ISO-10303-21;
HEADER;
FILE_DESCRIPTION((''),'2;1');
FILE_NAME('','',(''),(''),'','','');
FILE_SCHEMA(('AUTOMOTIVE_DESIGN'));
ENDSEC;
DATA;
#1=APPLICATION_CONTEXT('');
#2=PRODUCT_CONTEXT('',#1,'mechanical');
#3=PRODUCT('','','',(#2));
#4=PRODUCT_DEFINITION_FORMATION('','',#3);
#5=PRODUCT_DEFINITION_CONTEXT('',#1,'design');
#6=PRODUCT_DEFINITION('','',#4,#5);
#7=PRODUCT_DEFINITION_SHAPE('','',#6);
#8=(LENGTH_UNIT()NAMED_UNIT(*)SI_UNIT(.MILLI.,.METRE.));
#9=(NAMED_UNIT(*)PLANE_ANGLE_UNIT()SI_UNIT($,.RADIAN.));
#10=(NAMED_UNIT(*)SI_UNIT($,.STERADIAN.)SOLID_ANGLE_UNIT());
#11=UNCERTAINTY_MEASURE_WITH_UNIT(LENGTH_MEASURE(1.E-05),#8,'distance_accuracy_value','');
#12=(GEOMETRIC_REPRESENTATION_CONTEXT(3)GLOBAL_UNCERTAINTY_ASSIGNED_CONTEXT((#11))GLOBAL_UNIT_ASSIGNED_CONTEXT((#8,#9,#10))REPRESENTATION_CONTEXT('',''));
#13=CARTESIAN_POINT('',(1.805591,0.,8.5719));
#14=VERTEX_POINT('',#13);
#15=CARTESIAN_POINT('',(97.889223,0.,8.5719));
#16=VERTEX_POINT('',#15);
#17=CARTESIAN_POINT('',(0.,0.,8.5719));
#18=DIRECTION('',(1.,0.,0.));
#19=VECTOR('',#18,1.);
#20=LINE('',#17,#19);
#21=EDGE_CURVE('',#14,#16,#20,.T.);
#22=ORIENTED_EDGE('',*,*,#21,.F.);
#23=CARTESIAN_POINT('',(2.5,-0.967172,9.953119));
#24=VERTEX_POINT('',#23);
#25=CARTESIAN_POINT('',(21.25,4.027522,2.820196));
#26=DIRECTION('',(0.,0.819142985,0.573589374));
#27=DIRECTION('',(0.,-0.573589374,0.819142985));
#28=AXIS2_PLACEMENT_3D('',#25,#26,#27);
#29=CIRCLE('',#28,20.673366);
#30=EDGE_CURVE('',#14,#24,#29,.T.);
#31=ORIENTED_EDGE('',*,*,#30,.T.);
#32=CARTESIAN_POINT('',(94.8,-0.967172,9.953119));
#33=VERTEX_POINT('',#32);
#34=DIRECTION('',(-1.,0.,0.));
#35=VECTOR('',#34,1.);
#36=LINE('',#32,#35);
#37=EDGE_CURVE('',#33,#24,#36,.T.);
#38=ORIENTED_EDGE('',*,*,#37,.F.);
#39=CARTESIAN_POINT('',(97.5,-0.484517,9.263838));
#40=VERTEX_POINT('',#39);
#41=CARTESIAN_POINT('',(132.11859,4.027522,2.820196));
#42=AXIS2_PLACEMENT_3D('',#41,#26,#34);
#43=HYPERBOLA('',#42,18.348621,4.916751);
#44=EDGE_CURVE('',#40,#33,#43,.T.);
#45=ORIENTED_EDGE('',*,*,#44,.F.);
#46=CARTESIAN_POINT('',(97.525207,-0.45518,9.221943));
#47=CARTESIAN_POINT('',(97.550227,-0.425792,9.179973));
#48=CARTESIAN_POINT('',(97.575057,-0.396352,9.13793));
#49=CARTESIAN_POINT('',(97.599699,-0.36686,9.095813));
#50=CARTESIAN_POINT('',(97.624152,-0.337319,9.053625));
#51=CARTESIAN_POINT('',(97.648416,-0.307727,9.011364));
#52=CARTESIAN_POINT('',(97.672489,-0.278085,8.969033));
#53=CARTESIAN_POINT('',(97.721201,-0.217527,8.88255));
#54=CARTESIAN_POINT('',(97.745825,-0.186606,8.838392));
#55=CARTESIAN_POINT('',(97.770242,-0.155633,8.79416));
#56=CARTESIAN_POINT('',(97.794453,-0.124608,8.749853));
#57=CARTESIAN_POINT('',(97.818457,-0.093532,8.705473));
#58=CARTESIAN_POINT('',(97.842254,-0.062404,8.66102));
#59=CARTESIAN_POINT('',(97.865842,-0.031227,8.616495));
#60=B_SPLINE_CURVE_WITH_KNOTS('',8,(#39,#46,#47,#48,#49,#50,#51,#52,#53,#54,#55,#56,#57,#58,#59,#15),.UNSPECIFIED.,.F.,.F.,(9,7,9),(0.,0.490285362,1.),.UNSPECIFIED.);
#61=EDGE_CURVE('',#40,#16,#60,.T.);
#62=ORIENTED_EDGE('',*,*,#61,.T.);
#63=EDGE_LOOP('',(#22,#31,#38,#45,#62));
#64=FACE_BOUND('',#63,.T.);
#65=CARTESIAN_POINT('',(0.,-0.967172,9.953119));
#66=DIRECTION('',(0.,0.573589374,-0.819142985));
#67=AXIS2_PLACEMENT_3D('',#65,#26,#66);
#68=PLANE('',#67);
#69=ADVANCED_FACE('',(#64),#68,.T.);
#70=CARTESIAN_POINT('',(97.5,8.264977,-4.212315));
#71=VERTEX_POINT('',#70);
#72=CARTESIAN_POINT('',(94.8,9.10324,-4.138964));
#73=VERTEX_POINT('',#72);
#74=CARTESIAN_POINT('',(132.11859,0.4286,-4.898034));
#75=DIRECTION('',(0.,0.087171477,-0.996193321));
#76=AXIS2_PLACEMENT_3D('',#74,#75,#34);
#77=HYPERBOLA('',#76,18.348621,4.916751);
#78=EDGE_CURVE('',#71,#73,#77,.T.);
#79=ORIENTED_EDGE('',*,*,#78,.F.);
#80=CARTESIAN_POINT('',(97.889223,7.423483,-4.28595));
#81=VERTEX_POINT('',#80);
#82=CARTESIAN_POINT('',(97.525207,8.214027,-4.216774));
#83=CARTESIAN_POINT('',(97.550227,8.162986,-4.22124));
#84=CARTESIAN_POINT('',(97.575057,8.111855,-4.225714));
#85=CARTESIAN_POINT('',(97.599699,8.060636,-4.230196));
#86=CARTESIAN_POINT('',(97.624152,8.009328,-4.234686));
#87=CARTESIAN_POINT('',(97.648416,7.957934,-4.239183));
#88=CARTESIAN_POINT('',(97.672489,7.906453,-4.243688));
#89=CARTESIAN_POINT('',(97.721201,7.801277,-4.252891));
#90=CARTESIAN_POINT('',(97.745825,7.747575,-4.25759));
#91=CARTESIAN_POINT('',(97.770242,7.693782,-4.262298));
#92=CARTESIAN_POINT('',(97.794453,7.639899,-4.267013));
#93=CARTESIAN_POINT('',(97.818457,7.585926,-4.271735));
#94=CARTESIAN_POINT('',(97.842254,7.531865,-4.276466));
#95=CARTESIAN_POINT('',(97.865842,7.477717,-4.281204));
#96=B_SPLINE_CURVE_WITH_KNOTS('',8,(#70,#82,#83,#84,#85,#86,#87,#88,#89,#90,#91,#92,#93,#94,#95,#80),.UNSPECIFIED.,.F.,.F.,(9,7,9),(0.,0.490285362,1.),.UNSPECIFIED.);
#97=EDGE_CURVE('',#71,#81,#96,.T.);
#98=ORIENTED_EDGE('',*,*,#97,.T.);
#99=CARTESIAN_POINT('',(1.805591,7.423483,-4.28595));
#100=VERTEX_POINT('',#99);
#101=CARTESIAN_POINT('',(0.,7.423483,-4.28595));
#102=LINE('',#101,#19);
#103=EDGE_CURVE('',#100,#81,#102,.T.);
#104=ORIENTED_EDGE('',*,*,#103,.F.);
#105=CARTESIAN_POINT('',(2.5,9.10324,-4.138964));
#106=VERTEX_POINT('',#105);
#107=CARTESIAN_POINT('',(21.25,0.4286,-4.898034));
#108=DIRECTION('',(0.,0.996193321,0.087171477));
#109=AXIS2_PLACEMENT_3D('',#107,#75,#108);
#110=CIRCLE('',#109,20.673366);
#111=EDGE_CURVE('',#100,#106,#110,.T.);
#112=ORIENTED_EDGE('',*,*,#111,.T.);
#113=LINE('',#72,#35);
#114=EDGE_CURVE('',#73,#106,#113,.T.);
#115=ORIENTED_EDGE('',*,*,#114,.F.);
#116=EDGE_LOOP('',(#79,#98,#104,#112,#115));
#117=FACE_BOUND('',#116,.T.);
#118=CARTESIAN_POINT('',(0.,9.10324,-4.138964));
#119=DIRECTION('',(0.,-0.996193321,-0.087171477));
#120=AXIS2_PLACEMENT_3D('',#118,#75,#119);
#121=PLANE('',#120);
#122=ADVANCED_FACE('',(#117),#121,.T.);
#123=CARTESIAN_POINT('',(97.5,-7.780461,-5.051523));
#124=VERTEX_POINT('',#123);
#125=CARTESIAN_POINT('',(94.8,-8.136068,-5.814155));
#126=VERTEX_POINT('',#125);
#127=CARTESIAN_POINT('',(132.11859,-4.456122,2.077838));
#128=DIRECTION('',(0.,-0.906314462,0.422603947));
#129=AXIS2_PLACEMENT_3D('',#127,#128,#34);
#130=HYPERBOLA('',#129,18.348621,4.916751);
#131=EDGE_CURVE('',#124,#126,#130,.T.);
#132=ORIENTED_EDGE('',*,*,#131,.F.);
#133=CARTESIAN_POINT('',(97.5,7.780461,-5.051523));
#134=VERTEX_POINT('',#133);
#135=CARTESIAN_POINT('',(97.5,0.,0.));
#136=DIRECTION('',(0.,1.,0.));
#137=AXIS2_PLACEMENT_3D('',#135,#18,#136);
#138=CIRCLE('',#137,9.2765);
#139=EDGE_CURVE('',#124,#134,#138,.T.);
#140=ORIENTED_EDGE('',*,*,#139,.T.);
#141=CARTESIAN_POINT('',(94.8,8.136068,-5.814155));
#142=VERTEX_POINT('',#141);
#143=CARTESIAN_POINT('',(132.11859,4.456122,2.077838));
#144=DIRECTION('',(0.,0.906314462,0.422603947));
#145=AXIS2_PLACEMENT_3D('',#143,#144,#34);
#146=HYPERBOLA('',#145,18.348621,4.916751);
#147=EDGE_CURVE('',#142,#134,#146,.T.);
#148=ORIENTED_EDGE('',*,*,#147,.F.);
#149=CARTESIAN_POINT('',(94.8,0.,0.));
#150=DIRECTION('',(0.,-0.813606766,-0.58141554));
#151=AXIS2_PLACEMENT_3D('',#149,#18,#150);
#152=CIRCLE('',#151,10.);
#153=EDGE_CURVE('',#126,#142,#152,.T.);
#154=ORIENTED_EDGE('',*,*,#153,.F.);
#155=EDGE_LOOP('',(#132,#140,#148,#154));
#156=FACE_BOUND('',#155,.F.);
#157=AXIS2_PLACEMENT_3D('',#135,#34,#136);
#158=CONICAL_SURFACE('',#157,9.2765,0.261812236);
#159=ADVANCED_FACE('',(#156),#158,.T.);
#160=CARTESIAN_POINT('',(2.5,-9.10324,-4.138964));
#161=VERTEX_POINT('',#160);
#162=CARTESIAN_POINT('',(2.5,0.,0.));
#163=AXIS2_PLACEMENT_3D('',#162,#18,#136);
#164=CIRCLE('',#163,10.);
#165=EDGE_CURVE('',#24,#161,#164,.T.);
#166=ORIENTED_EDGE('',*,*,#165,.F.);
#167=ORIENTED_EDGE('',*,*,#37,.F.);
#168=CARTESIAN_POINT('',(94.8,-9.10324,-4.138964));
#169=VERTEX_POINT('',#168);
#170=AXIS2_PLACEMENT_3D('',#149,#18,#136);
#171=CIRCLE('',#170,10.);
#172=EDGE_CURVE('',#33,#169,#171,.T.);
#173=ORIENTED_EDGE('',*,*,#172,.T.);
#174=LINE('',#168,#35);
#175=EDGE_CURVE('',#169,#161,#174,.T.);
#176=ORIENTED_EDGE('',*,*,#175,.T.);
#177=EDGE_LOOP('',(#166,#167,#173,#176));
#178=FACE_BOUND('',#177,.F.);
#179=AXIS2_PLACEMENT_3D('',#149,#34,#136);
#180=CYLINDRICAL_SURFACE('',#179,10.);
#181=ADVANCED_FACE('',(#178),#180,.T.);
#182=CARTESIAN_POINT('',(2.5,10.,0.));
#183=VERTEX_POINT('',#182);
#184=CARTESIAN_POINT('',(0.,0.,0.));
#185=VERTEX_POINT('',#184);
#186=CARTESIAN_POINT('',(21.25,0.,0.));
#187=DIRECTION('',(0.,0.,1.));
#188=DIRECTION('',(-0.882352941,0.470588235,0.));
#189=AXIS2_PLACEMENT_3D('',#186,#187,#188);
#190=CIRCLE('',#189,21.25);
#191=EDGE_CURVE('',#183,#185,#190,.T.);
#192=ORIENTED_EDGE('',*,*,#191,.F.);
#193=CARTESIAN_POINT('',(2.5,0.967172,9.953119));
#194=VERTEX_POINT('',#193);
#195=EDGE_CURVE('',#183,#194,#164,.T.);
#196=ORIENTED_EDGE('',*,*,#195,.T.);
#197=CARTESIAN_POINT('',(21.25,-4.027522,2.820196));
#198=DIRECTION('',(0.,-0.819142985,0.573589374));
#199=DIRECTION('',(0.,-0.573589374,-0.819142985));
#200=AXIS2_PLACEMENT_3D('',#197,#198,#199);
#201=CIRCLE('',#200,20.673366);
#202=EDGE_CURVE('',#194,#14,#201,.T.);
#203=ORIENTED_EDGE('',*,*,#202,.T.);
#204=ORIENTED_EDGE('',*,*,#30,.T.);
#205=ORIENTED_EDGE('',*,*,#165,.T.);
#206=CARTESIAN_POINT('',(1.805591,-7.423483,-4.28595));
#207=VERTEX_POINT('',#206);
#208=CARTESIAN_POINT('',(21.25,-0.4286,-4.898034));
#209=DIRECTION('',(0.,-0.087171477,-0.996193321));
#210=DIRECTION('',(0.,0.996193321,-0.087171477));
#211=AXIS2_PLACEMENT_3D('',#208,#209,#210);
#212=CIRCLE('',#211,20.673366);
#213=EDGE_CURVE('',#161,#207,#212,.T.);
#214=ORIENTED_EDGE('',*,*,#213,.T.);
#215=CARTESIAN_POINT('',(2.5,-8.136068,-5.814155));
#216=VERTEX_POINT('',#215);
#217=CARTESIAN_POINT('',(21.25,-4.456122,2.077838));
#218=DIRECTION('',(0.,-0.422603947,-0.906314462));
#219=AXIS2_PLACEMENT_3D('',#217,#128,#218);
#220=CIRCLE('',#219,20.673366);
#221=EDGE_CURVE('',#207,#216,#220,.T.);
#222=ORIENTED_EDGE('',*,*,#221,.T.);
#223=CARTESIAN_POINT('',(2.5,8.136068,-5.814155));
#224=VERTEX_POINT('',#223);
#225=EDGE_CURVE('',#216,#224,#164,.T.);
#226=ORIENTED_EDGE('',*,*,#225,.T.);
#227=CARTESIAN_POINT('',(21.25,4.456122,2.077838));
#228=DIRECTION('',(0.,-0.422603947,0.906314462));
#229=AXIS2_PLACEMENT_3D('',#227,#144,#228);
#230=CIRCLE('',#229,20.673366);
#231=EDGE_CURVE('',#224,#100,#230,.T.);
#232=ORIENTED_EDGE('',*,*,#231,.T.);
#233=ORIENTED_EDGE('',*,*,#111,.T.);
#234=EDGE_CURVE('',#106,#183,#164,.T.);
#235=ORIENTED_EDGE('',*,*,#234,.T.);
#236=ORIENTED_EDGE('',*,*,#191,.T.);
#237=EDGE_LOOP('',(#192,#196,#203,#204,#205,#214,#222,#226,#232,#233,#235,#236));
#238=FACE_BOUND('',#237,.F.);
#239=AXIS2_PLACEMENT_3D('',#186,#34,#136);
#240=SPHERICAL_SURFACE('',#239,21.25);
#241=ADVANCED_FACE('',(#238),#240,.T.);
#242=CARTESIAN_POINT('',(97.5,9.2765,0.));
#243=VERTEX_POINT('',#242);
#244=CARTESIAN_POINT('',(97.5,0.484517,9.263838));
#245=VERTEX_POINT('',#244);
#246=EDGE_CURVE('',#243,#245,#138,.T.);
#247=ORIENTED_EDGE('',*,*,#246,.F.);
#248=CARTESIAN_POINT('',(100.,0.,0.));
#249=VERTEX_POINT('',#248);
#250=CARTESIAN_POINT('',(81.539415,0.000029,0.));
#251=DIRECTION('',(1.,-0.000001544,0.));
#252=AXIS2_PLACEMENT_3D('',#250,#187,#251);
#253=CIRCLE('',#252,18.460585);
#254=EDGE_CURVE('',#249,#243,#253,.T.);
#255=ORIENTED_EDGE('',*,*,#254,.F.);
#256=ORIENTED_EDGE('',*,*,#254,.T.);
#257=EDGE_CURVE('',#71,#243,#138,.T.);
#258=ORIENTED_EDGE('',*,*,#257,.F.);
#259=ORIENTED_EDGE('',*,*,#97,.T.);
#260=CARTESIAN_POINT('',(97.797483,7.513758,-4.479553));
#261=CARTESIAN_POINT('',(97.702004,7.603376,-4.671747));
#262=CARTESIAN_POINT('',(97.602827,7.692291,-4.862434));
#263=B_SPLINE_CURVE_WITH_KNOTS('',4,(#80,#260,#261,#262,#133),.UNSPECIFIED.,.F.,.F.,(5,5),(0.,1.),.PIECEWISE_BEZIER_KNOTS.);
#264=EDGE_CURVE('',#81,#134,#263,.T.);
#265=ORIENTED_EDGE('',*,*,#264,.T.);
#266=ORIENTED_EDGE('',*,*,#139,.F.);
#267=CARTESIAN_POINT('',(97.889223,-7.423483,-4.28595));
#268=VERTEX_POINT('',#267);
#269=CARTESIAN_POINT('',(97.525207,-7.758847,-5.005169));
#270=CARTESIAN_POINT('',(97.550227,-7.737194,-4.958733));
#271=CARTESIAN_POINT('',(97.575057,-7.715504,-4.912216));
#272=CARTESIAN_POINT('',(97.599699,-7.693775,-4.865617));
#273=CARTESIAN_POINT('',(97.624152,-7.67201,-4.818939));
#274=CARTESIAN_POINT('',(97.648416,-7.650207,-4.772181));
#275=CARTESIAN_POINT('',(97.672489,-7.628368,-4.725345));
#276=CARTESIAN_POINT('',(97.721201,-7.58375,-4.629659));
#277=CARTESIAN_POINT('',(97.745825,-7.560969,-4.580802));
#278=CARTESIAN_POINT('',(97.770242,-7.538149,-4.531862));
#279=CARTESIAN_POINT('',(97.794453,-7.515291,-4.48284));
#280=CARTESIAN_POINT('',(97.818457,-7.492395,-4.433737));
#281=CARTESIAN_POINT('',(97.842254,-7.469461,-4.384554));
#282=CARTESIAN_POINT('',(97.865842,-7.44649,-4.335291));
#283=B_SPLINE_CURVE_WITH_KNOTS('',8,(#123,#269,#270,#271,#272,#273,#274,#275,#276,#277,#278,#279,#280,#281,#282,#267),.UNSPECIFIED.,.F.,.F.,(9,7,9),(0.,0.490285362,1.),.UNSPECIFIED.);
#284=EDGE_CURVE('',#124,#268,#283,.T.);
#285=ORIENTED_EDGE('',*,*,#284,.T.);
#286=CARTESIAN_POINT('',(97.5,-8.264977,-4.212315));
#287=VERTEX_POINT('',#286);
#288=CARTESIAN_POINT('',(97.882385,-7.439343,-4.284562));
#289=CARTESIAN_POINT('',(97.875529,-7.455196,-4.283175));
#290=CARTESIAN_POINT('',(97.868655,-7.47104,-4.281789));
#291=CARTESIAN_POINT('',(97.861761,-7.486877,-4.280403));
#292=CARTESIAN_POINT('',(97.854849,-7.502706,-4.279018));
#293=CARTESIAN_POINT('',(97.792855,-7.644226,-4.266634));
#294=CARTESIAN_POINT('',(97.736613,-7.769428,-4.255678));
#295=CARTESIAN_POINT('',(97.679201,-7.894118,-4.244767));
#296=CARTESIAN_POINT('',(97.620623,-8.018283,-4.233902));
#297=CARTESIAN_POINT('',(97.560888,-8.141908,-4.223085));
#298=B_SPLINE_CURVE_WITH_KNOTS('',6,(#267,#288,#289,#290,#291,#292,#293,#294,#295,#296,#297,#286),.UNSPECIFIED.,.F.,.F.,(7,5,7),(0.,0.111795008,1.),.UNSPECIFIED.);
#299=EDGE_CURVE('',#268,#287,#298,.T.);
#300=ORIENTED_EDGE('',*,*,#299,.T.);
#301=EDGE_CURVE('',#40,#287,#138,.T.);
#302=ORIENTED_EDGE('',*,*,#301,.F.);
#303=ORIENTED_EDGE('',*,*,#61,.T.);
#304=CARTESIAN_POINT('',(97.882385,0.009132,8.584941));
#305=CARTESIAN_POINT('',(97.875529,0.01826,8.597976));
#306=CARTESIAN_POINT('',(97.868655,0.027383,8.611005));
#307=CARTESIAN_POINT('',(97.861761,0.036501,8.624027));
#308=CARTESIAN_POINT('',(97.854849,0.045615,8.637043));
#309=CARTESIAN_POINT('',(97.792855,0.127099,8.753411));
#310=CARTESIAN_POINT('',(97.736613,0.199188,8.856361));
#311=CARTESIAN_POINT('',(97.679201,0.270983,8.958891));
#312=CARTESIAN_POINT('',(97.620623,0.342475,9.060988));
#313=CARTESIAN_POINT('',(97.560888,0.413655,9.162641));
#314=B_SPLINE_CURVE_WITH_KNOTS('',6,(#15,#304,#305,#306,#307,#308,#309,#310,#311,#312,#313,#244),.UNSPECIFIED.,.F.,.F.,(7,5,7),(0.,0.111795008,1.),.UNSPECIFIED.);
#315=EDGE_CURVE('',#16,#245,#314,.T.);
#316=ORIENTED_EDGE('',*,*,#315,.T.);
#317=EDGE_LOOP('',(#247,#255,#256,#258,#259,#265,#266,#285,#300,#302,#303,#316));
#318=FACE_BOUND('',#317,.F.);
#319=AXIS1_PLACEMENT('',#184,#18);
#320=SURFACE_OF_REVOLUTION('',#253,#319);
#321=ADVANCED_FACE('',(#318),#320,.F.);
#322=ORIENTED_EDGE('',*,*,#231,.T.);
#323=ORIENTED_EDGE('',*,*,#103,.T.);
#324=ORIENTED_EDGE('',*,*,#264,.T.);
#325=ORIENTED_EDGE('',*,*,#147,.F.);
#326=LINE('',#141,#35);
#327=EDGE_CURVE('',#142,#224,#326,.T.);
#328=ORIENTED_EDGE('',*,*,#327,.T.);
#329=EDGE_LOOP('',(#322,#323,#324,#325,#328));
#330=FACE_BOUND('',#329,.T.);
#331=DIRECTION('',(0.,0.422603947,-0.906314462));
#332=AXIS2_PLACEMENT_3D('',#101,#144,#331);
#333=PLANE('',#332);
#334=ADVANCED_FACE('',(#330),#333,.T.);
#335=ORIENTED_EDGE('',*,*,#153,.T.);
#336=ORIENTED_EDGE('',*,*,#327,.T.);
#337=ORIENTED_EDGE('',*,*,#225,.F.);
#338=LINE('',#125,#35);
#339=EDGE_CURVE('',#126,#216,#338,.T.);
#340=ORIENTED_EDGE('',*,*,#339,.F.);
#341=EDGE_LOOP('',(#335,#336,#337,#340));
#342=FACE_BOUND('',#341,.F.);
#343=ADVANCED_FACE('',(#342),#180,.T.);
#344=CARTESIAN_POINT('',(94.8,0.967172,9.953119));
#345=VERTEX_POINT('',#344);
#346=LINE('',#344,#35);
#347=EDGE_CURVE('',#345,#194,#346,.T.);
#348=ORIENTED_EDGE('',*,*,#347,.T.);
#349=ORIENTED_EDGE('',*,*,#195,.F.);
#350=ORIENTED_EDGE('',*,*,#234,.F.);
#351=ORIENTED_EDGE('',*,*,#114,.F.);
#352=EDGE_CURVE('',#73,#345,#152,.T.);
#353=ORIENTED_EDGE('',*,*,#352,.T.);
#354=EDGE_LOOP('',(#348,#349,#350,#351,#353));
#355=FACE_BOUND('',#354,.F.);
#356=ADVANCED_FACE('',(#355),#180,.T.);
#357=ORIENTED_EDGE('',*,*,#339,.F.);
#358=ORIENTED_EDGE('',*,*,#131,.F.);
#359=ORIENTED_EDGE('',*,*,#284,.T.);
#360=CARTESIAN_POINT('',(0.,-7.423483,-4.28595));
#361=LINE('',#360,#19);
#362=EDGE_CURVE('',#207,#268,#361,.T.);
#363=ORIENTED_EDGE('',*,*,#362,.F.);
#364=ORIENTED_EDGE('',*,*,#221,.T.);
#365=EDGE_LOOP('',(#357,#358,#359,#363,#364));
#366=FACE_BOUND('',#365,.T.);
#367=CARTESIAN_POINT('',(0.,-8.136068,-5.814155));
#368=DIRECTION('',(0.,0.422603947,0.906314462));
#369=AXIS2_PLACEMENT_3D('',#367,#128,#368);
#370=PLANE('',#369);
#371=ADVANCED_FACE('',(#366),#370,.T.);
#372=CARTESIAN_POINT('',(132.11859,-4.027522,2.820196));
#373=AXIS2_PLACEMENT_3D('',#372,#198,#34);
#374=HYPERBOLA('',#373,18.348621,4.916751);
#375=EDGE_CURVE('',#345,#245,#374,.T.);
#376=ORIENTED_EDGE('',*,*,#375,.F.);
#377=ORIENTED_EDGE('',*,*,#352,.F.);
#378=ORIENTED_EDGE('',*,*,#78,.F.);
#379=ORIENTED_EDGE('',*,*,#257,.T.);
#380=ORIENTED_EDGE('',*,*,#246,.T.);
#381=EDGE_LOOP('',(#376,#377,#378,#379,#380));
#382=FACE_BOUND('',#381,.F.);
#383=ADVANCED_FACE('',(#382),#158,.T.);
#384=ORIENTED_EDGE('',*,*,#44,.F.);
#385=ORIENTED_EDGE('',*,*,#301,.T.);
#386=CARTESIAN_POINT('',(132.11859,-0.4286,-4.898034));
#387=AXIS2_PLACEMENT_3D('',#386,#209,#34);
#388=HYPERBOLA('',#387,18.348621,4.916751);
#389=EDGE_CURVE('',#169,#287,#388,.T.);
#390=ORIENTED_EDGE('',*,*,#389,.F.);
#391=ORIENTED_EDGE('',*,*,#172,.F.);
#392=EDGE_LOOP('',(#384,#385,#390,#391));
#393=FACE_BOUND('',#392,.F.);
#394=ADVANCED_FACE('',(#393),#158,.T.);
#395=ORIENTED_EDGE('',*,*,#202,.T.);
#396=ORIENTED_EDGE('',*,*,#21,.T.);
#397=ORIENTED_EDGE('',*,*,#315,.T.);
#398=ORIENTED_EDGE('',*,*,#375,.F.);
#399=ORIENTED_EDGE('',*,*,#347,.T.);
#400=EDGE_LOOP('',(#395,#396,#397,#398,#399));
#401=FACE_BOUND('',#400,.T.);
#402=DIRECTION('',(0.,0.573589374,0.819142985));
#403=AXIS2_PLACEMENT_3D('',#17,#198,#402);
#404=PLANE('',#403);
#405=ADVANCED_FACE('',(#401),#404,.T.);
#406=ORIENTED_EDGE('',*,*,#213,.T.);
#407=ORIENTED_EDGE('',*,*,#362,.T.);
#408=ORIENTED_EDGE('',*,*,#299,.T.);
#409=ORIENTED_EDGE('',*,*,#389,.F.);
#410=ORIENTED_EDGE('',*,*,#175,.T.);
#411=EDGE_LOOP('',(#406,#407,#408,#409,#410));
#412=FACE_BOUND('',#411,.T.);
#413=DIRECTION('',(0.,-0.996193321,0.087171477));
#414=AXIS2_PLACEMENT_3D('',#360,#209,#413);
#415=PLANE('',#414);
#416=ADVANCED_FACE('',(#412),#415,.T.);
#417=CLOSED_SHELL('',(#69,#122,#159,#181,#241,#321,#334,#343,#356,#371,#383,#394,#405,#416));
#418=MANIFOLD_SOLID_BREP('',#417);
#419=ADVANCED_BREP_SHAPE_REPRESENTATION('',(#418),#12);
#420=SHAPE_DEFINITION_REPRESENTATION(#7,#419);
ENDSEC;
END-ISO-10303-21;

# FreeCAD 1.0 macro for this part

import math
import FreeCAD as App
import Part
import Sketcher
Q = App.Units.Quantity

doc = App.newDocument("Part")
body = doc.addObject("PartDesign::Body", "Body")

sketch1 = body.newObject("Sketcher::SketchObject", "Sketch")
sketch1.AttachmentSupport = (doc.getObject("XY_Plane"), [""])
sketch1.MapMode = "FlatFace"
sketch1.addGeometry([
    Part.ArcOfCircle(Part.Circle(App.Vector(81.5, 0, 0), App.Vector(0, 0, 1), 18.5), math.radians(0), math.radians(30)),
    Part.LineSegment(App.Vector(97.5, 9.3, 0), App.Vector(94.8, 10, 0)),
    Part.LineSegment(App.Vector(94.8, 10, 0), App.Vector(2.5, 10, 0)),
    Part.ArcOfCircle(Part.Circle(App.Vector(21.2, 0, 0), App.Vector(0, 0, 1), 21.2), math.radians(152), math.radians(180)),
    Part.LineSegment(App.Vector(0, 0, 0), App.Vector(100, 0, 0)),
], False)
sketch1.addConstraint([
    Sketcher.Constraint("Coincident", 0, 2, 1, 1),
    Sketcher.Constraint("Coincident", 1, 2, 2, 1),
    Sketcher.Constraint("Coincident", 2, 2, 3, 1),
    Sketcher.Constraint("Coincident", 3, 2, 4, 1),
    Sketcher.Constraint("Coincident", 4, 2, 0, 1),
    Sketcher.Constraint("Horizontal", 2),
    Sketcher.Constraint("Horizontal", 4),
    Sketcher.Constraint("Coincident", 3, 2, -1, 1),
    Sketcher.Constraint("PointOnObject", 0, 3, -1),
    Sketcher.Constraint("PointOnObject", 3, 3, -1),
    Sketcher.Constraint("DistanceX", 4, 1, 4, 2, Q("100 mm")),
    Sketcher.Constraint("DistanceX", -1, 1, 2, 2, Q("2.5 mm")),
    Sketcher.Constraint("DistanceX", 0, 2, 4, 2, Q("2.5 mm")),
    Sketcher.Constraint("DistanceX", 1, 2, 4, 2, Q("5.2 mm")),
    Sketcher.Constraint("Angle", 1, Q("164.9993 deg")),
    Sketcher.Constraint("Radius", 3, Q("21.25 mm")),
])
revolution = body.newObject("PartDesign::Revolution", "Revolution")
revolution.Profile = sketch1
revolution.ReferenceAxis = (sketch1, ["H_Axis"])
revolution.Angle = 360

sketch2 = body.newObject("Sketcher::SketchObject", "Sketch001")
sketch2.AttachmentSupport = (doc.getObject("YZ_Plane"), [""])
sketch2.MapMode = "FlatFace"
sketch2.addGeometry([
    Part.LineSegment(App.Vector(0, 8.6, 0), App.Vector(1, 10, 0)),
    Part.LineSegment(App.Vector(1, 10, 0), App.Vector(-1, 10, 0)),
    Part.LineSegment(App.Vector(-1, 10, 0), App.Vector(0, 8.6, 0)),
], False)
sketch2.addConstraint([
    Sketcher.Constraint("Coincident", 0, 2, 1, 1),
    Sketcher.Constraint("Coincident", 1, 2, 2, 1),
    Sketcher.Constraint("Coincident", 2, 2, 0, 1),
    Sketcher.Constraint("Horizontal", 1),
    Sketcher.Constraint("PointOnObject", 2, 2, -2),
    Sketcher.Constraint("Equal", 0, 2),
    Sketcher.Constraint("DistanceX", -1, 1, 0, 2, Q("1 mm")),
    Sketcher.Constraint("Angle", 0, Q("54.999 deg")),
    Sketcher.Constraint("DistanceY", -1, 1, 0, 2, Q("10 mm")),
])
pocket1 = body.newObject("PartDesign::Pocket", "Pocket")
pocket1.Profile = sketch2
pocket1.Type = "ThroughAll"
pocket1.Reversed = True
doc.recompute()

polarpattern = body.newObject("PartDesign::PolarPattern", "PolarPattern")
polarpattern.Originals = [pocket1]
polarpattern.Axis = (doc.getObject("X_Axis"), [""])
polarpattern.Angle = 360
polarpattern.Occurrences = 3
body.Tip = polarpattern

doc.recompute()
